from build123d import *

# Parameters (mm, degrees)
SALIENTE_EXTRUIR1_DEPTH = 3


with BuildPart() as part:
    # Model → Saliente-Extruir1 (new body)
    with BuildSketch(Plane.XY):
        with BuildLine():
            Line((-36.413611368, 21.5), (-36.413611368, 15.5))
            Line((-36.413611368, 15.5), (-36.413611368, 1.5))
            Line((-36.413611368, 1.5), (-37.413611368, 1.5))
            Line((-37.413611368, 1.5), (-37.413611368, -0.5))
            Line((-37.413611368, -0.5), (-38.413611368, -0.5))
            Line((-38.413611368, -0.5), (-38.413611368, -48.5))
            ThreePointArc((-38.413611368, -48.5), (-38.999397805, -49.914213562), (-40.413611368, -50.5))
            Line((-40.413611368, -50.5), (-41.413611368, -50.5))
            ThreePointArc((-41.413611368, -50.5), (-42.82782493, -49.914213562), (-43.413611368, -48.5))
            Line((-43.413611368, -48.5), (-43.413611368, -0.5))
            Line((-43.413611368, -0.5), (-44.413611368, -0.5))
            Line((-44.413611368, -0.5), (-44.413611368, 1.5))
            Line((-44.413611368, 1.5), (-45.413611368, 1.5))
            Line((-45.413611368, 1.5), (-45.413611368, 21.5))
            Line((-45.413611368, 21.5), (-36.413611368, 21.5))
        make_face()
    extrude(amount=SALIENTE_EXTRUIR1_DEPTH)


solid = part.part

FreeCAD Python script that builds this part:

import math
import FreeCAD as App
import Part
import Sketcher

V = App.Vector
Q = App.Units.Quantity

doc = App.newDocument("Part")
params = doc.addObject("Spreadsheet::Sheet", "Params")
for row, (alias, value) in enumerate([
    ("sketch1_radius", "2 mm"),
    ("sketch1_width", "9 mm"),
    ("sketch1_height", "20 mm"),
    ("sketch1_height2", "2 mm"),
    ("sketch1_height3", "48 mm"),
    ("pad1_length", "3 mm"),
], start=1):
    params.set(f"A{row}", alias)
    params.set(f"B{row}", "=" + value)
    params.setAlias(f"B{row}", alias)

body = doc.addObject("PartDesign::Body", "Body")

# Sketch on XY plane
sketch1 = doc.addObject("Sketcher::SketchObject", "Sketch")
body.addObject(sketch1)
sketch1.AttachmentSupport = (doc.XY_Plane, [""])
sketch1.MapMode = "FlatFace"
sketch1.addGeometry(Part.LineSegment(V(-36.4, 1.5, 0), V(-36.4, 21.5, 0)), False)
sketch1.addGeometry(Part.LineSegment(V(-36.4, 21.5, 0), V(-45.4, 21.5, 0)), False)
sketch1.addGeometry(Part.LineSegment(V(-45.4, 21.5, 0), V(-45.4, 1.5, 0)), False)
sketch1.addGeometry(Part.LineSegment(V(-45.4, 1.5, 0), V(-44.4, 1.5, 0)), False)
sketch1.addGeometry(Part.LineSegment(V(-44.4, 1.5, 0), V(-44.4, -0.5, 0)), False)
sketch1.addGeometry(Part.LineSegment(V(-44.4, -0.5, 0), V(-43.4, -0.5, 0)), False)
sketch1.addGeometry(Part.LineSegment(V(-43.4, -0.5, 0), V(-43.4, -48.5, 0)), False)
sketch1.addGeometry(Part.ArcOfCircle(Part.Circle(V(-41.4, -48.5, 0), V(0, 0, 1), 2), math.radians(-180), math.radians(-90)), False)
sketch1.addGeometry(Part.LineSegment(V(-41.4, -50.5, 0), V(-40.4, -50.5, 0)), False)
sketch1.addGeometry(Part.ArcOfCircle(Part.Circle(V(-40.4, -48.5, 0), V(0, 0, 1), 2), math.radians(-90), math.radians(0)), False)
sketch1.addGeometry(Part.LineSegment(V(-38.4, -48.5, 0), V(-38.4, -0.5, 0)), False)
sketch1.addGeometry(Part.LineSegment(V(-38.4, -0.5, 0), V(-37.4, -0.5, 0)), False)
sketch1.addGeometry(Part.LineSegment(V(-37.4, -0.5, 0), V(-37.4, 1.5, 0)), False)
sketch1.addGeometry(Part.LineSegment(V(-37.4, 1.5, 0), V(-36.4, 1.5, 0)), False)
sketch1.addConstraint(Sketcher.Constraint("Coincident", 0, 2, 1, 1))
sketch1.addConstraint(Sketcher.Constraint("Coincident", 1, 2, 2, 1))
sketch1.addConstraint(Sketcher.Constraint("Coincident", 2, 2, 3, 1))
sketch1.addConstraint(Sketcher.Constraint("Coincident", 3, 2, 4, 1))
sketch1.addConstraint(Sketcher.Constraint("Coincident", 4, 2, 5, 1))
sketch1.addConstraint(Sketcher.Constraint("Coincident", 5, 2, 6, 1))
sketch1.addConstraint(Sketcher.Constraint("Tangent", 6, 2, 7, 1))
sketch1.addConstraint(Sketcher.Constraint("Tangent", 7, 2, 8, 1))
sketch1.addConstraint(Sketcher.Constraint("Tangent", 8, 2, 9, 1))
sketch1.addConstraint(Sketcher.Constraint("Tangent", 9, 2, 10, 1))
sketch1.addConstraint(Sketcher.Constraint("Coincident", 10, 2, 11, 1))
sketch1.addConstraint(Sketcher.Constraint("Coincident", 11, 2, 12, 1))
sketch1.addConstraint(Sketcher.Constraint("Coincident", 12, 2, 13, 1))
sketch1.addConstraint(Sketcher.Constraint("Coincident", 13, 2, 0, 1))
sketch1.addConstraint(Sketcher.Constraint("Vertical", 0))
sketch1.addConstraint(Sketcher.Constraint("Horizontal", 1))
sketch1.addConstraint(Sketcher.Constraint("Vertical", 2))
sketch1.addConstraint(Sketcher.Constraint("Horizontal", 3))
sketch1.addConstraint(Sketcher.Constraint("Vertical", 4))
sketch1.addConstraint(Sketcher.Constraint("Horizontal", 5))
sketch1.addConstraint(Sketcher.Constraint("Vertical", 6))
sketch1.addConstraint(Sketcher.Constraint("Horizontal", 8))
sketch1.addConstraint(Sketcher.Constraint("Vertical", 10))
sketch1.addConstraint(Sketcher.Constraint("Horizontal", 11))
sketch1.addConstraint(Sketcher.Constraint("Vertical", 12))
sketch1.addConstraint(Sketcher.Constraint("Horizontal", 13))
sketch1.addConstraint(Sketcher.Constraint("Equal", 7, 9))
sketch1.addConstraint(Sketcher.Constraint("Horizontal", 5, 2, 10, 2))
sketch1.addConstraint(Sketcher.Constraint("Horizontal", 3, 2, 12, 2))
sketch1.addConstraint(Sketcher.Constraint("Equal", 3, 5))
sketch1.addConstraint(Sketcher.Constraint("Equal", 5, 8))
sketch1.addConstraint(Sketcher.Constraint("Equal", 8, 11))
sketch1.addConstraint(Sketcher.Constraint("Equal", 11, 13))
sketch1.addConstraint(Sketcher.Constraint("Radius", 7, Q("2 mm")))
sketch1.addConstraint(Sketcher.Constraint("DistanceX", 1, 2, 1, 1, Q("9 mm")))
sketch1.addConstraint(Sketcher.Constraint("DistanceY", 0, 1, 0, 2, Q("20 mm")))
sketch1.addConstraint(Sketcher.Constraint("DistanceY", 4, 2, 4, 1, Q("2 mm")))
sketch1.addConstraint(Sketcher.Constraint("DistanceY", 6, 2, 6, 1, Q("48 mm")))
sketch1.addConstraint(Sketcher.Constraint("DistanceY", 7, 3, -1, 1, Q("48.5 mm")))
sketch1.addConstraint(Sketcher.Constraint("DistanceX", 7, 3, -1, 1, Q("41.413611 mm")))
sketch1.setExpression("Constraints[33]", "Params.sketch1_radius")
sketch1.setExpression("Constraints[34]", "Params.sketch1_width")
sketch1.setExpression("Constraints[35]", "Params.sketch1_height")
sketch1.setExpression("Constraints[36]", "Params.sketch1_height2")
sketch1.setExpression("Constraints[37]", "Params.sketch1_height3")
pad1 = doc.addObject("PartDesign::Pad", "Pad")
body.addObject(pad1)
pad1.Profile = sketch1
pad1.setExpression("Length", "Params.pad1_length")

doc.recompute()
